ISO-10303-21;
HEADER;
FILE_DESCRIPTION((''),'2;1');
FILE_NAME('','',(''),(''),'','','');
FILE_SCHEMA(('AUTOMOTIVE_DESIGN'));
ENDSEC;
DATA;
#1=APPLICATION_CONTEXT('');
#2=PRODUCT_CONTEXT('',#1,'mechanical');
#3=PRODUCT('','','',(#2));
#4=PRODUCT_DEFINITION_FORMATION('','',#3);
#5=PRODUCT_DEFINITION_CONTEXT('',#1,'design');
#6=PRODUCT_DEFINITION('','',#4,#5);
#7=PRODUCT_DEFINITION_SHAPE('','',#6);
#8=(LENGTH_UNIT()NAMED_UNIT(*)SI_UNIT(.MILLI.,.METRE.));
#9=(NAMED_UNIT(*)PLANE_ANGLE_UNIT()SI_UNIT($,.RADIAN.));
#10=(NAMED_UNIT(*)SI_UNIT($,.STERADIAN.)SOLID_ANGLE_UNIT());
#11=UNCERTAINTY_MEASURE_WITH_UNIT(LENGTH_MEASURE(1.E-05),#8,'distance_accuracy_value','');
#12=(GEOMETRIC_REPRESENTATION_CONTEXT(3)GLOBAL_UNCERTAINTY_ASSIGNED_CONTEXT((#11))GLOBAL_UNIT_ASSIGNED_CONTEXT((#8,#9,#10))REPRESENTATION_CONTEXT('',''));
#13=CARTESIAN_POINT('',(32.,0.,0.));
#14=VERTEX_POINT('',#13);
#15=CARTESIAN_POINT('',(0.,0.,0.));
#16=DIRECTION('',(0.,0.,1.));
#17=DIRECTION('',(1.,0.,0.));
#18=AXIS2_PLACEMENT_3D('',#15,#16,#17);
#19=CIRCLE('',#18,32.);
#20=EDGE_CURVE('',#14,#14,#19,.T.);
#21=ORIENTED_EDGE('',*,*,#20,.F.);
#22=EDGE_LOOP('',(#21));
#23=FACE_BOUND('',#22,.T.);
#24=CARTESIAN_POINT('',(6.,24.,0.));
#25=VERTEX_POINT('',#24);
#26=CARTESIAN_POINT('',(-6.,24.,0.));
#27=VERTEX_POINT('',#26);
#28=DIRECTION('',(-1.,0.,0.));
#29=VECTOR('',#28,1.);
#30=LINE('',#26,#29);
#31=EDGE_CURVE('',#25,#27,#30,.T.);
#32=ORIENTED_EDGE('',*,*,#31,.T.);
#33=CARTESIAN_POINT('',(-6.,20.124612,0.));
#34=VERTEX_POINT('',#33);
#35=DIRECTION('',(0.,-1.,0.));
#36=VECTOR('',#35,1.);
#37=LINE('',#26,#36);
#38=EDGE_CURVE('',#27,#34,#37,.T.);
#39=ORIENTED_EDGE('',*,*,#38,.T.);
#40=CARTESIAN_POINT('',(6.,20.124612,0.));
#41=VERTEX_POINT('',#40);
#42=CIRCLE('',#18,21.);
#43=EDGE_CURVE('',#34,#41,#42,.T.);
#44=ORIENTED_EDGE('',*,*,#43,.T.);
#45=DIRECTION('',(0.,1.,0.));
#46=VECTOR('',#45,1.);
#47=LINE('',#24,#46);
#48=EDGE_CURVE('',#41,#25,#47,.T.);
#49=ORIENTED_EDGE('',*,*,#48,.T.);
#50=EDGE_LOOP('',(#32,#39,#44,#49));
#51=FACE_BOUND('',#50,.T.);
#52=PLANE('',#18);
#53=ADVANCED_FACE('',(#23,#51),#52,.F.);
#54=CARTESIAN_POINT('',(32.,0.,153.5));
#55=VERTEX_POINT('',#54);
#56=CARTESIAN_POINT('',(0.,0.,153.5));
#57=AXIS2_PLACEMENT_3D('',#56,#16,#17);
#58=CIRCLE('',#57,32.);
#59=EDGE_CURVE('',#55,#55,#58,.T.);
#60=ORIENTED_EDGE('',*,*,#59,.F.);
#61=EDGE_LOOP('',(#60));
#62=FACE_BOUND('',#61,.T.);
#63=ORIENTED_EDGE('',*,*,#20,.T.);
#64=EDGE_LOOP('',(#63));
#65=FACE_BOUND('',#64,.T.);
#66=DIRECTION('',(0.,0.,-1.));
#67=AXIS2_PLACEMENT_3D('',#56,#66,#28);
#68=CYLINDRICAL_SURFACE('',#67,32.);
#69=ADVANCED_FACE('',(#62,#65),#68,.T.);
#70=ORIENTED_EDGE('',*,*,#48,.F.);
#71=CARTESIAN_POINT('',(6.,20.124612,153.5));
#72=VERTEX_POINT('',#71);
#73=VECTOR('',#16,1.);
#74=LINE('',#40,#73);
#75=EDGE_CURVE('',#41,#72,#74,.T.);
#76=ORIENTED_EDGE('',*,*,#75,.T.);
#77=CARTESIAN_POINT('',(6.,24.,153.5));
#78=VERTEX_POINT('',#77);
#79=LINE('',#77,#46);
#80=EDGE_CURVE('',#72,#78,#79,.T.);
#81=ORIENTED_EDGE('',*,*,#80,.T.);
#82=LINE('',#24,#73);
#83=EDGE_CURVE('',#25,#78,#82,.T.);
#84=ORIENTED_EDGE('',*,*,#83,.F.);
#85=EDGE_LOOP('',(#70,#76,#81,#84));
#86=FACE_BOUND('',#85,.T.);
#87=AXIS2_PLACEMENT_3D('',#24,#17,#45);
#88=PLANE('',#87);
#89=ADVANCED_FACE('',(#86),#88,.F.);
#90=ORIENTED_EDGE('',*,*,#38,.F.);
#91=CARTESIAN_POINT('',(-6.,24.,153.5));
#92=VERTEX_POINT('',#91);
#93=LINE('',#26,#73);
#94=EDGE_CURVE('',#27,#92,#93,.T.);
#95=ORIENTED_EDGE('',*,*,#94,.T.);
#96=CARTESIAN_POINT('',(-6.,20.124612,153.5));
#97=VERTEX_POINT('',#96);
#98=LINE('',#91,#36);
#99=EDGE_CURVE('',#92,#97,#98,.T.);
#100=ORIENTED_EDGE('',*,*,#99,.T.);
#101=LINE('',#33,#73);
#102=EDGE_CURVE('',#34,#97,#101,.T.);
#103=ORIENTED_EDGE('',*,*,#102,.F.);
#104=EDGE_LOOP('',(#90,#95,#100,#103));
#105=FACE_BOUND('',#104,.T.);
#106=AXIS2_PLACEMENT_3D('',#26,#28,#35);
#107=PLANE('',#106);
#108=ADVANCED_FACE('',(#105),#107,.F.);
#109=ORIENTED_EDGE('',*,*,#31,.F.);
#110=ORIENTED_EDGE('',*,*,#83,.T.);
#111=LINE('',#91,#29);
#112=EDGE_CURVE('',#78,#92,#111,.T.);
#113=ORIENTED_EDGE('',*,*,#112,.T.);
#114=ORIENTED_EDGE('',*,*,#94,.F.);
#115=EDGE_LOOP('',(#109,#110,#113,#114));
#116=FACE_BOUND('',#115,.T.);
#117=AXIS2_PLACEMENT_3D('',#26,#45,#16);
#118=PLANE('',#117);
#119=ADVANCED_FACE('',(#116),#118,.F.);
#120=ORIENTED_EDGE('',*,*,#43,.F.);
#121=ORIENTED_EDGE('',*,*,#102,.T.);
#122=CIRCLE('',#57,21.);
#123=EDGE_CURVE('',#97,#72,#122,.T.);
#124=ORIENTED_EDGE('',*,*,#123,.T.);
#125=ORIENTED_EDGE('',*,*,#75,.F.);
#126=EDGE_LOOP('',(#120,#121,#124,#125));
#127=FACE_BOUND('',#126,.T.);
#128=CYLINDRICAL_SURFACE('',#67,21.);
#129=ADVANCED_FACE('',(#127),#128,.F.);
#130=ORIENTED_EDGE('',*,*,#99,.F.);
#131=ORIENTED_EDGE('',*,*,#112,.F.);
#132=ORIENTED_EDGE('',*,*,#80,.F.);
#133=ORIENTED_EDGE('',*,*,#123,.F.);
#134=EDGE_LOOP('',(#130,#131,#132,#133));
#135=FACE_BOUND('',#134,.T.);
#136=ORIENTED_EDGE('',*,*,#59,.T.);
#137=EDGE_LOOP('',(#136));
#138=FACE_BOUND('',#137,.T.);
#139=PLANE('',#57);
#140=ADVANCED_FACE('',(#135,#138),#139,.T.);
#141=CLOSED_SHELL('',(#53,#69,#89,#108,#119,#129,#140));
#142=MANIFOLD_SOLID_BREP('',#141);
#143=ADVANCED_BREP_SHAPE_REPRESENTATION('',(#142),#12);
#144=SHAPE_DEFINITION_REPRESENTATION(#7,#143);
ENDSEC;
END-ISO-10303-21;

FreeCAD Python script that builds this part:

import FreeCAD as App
import Part
import Sketcher
from FreeCAD import Vector
Q = App.Units.Quantity

doc = App.newDocument("Part")
body = doc.addObject("PartDesign::Body", "Body")

sketch1 = body.newObject("Sketcher::SketchObject", "Sketch")
sketch1.AttachmentSupport = (doc.getObject("XY_Plane"), [""])
sketch1.MapMode = "FlatFace"
sketch1.addGeometry([
    Part.Circle(Vector(0, 0, 0), Vector(0, 0, 1), 32),
    Part.Circle(Vector(0, 0, 0), Vector(0, 0, 1), 21),
], False)
sketch1.addConstraint([
    Sketcher.Constraint("Coincident", 0, 3, -1, 1),
    Sketcher.Constraint("Coincident", 1, 3, -1, 1),
    Sketcher.Constraint("Diameter", 0, Q("64 mm")),
    Sketcher.Constraint("Diameter", 1, Q("42 mm")),
])
pad1 = body.newObject("PartDesign::Pad", "Pad")
pad1.Profile = sketch1
pad1.Length = 153.5

sketch2 = body.newObject("Sketcher::SketchObject", "Sketch001")
sketch2.AttachmentSupport = (doc.getObject("XY_Plane"), [""])
sketch2.MapMode = "FlatFace"
sketch2.AttachmentOffset = App.Placement(Vector(0, 0, 153.5), App.Rotation())
sketch2.addGeometry([
    Part.LineSegment(Vector(-6, 24, 0), Vector(-6, 20.1, 0)),
    Part.LineSegment(Vector(-6, 20.1, 0), Vector(6, 20.1, 0)),
    Part.LineSegment(Vector(6, 20.1, 0), Vector(6, 24, 0)),
    Part.LineSegment(Vector(6, 24, 0), Vector(-6, 24, 0)),
], False)
sketch2.addConstraint([
    Sketcher.Constraint("Coincident", 0, 2, 1, 1),
    Sketcher.Constraint("Coincident", 1, 2, 2, 1),
    Sketcher.Constraint("Coincident", 2, 2, 3, 1),
    Sketcher.Constraint("Coincident", 3, 2, 0, 1),
    Sketcher.Constraint("Vertical", 0),
    Sketcher.Constraint("Horizontal", 1),
    Sketcher.Constraint("Vertical", 2),
    Sketcher.Constraint("Horizontal", 3),
    Sketcher.Constraint("DistanceX", 1, 1, 1, 2, Q("12 mm")),
    Sketcher.Constraint("DistanceX", 0, 2, -1, 1, Q("6 mm")),
    Sketcher.Constraint("DistanceY", -1, 1, 2, 2, Q("24 mm")),
    Sketcher.Constraint("DistanceY", 0, 2, 0, 1, Q("3.875388 mm")),
])
pocket1 = body.newObject("PartDesign::Pocket", "Pocket")
pocket1.Profile = sketch2
pocket1.Type = "ThroughAll"

doc.recompute()
